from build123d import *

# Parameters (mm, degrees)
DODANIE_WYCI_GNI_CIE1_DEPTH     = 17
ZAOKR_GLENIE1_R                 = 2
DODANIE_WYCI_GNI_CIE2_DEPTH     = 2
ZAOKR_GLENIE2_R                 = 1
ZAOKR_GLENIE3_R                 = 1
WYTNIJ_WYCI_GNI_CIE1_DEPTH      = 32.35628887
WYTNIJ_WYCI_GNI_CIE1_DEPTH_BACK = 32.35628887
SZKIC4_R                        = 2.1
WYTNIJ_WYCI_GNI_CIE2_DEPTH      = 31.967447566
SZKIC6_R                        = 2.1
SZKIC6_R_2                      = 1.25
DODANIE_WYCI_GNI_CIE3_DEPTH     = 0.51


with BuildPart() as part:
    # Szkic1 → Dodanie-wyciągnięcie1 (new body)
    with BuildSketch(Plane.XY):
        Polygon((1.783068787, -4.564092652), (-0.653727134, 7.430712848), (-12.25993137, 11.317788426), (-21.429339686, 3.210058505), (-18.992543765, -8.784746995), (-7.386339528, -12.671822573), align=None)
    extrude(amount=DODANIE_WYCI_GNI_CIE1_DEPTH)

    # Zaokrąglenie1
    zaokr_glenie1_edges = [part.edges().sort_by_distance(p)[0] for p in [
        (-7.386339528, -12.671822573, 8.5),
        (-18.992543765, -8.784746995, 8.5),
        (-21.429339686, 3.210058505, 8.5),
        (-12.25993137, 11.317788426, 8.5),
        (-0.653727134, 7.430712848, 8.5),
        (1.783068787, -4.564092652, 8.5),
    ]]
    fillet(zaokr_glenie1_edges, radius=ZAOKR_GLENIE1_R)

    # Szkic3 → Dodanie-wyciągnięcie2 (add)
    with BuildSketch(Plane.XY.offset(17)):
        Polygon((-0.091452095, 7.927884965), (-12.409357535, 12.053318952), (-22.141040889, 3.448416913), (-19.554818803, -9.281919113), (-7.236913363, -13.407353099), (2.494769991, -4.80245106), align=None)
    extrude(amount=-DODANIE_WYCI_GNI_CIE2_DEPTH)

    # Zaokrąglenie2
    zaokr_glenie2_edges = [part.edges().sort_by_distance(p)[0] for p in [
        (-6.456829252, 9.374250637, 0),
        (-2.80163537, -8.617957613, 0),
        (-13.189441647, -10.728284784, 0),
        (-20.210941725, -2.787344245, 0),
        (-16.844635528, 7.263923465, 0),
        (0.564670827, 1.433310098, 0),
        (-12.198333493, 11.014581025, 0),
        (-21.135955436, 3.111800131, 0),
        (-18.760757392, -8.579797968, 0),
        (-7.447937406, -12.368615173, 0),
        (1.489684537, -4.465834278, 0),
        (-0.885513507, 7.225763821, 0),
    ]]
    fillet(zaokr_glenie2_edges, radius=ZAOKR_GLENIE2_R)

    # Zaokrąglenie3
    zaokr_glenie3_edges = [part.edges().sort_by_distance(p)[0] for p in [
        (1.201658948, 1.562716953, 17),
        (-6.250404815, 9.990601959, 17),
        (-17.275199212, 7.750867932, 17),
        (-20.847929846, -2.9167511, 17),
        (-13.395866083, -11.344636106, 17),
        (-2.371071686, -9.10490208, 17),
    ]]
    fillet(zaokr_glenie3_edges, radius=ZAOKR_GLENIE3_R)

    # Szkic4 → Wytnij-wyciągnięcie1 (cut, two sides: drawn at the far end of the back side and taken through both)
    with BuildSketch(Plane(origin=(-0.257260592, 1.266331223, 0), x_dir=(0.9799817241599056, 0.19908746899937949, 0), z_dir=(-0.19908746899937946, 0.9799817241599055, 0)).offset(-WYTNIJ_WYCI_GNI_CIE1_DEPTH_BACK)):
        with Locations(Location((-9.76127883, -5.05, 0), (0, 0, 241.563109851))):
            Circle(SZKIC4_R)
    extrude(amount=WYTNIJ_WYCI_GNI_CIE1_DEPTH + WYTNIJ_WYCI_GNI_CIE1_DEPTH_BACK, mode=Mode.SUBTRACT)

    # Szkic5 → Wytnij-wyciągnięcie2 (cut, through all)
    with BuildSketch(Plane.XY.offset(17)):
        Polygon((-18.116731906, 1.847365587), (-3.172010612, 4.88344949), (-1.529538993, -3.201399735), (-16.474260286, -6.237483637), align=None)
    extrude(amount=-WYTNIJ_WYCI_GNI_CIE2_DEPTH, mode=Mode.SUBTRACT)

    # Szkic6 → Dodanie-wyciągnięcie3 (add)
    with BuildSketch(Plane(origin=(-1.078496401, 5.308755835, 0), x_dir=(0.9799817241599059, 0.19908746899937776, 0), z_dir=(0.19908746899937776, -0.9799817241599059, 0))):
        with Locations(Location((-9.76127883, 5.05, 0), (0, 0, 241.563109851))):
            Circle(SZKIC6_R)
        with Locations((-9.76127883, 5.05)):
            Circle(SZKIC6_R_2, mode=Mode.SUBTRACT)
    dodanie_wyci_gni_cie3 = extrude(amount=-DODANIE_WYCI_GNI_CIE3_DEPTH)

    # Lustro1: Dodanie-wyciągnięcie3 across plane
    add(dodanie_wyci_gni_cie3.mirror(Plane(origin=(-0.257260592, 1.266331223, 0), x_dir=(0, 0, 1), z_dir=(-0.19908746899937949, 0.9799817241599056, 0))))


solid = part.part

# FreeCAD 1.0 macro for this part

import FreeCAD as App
import Part
import Sketcher
from FreeCAD import Vector
Q = App.Units.Quantity


def edges_at(feature, points):
    """Names of the edges that pass closest to the given points."""
    edges = feature.Shape.Edges
    near = lambda p: min(range(len(edges)), key=lambda i: edges[i].distToShape(Part.Vertex(*p))[0])
    return sorted({f"Edge{near(p) + 1}" for p in points})


def add_polygon(sketch, points):
    """Adds a closed chain of lines whose ends are joined by coincident constraints."""
    first, n = sketch.GeometryCount, len(points)
    for a, b in zip(points, points[1:] + points[:1]):
        sketch.addGeometry(Part.LineSegment(App.Vector(*a, 0), App.Vector(*b, 0)), False)
    for i in range(n):
        sketch.addConstraint(Sketcher.Constraint("Coincident", first + i, 2, first + (i + 1) % n, 1))

doc = App.newDocument("Part")
body = doc.addObject("PartDesign::Body", "Body")

sketch1 = doc.addObject("Sketcher::SketchObject", "Sketch")
body.addObject(sketch1)
sketch1.AttachmentSupport = (doc.XY_Plane, [""])
sketch1.MapMode = "FlatFace"
add_polygon(sketch1, [(2, -5), (-1, 7), (-12, 11), (-21, 3), (-19, -9), (-7, -13)])
sketch1.addConstraint([
    Sketcher.Constraint("Parallel", 0, 3),
    Sketcher.Constraint("Parallel", 1, 4),
    Sketcher.Constraint("Parallel", 2, 5),
    Sketcher.Constraint("Equal", 0, 1),
    Sketcher.Constraint("Equal", 1, 2),
    Sketcher.Constraint("Equal", 2, 3),
    Sketcher.Constraint("DistanceX", 2, 2, 4, 2, Q("14.043 mm")),
    Sketcher.Constraint("DistanceX", 1, 2, -1, 1, Q("12.259931 mm")),
    Sketcher.Constraint("DistanceY", -1, 1, 1, 2, Q("11.317788 mm")),
    Sketcher.Constraint("DistanceX", 2, 2, -1, 1, Q("21.42934 mm")),
    Sketcher.Constraint("DistanceY", -1, 1, 2, 2, Q("3.210059 mm")),
    Sketcher.Constraint("DistanceY", 3, 2, 0, 2, Q("16.21546 mm")),
])
pad1 = doc.addObject("PartDesign::Pad", "Pad")
body.addObject(pad1)
pad1.Profile = sketch1
pad1.Length = 17
doc.recompute()

fillet = doc.addObject("PartDesign::Fillet", "Fillet")
body.addObject(fillet)
fillet.Base = (pad1, edges_at(pad1, [
    (-7.386, -12.672, 8.5),
    (-18.993, -8.785, 8.5),
    (-21.429, 3.21, 8.5),
    (-12.26, 11.318, 8.5),
    (-0.654, 7.431, 8.5),
    (1.783, -4.564, 8.5),
]))
fillet.Radius = 2

sketch2 = doc.addObject("Sketcher::SketchObject", "Sketch001")
body.addObject(sketch2)
sketch2.AttachmentSupport = (doc.XY_Plane, [""])
sketch2.MapMode = "FlatFace"
sketch2.AttachmentOffset = App.Placement(Vector(0, 0, 17), App.Rotation())
add_polygon(sketch2, [(0, 8), (-12, 12), (-22, 3), (-20, -9), (-7, -13), (2, -5)])
sketch2.addConstraint([
    Sketcher.Constraint("Parallel", 0, 3),
    Sketcher.Constraint("Parallel", 1, 4),
    Sketcher.Constraint("Parallel", 2, 5),
    Sketcher.Constraint("Equal", 0, 1),
    Sketcher.Constraint("Equal", 1, 2),
    Sketcher.Constraint("Equal", 2, 3),
    Sketcher.Constraint("Distance", 0, Q("12.990381 mm")),
    Sketcher.Constraint("DistanceY", -1, 1, 0, 2, Q("12.053319 mm")),
    Sketcher.Constraint("DistanceX", 1, 2, -1, 1, Q("22.141041 mm")),
    Sketcher.Constraint("DistanceX", 2, 2, -1, 1, Q("19.554819 mm")),
    Sketcher.Constraint("DistanceY", 2, 2, -1, 1, Q("9.281919 mm")),
    Sketcher.Constraint("DistanceX", -1, 1, 4, 2, Q("2.49477 mm")),
])
pad2 = doc.addObject("PartDesign::Pad", "Pad001")
body.addObject(pad2)
pad2.Profile = sketch2
pad2.Length = 2
pad2.Reversed = True
doc.recompute()

fillet2 = doc.addObject("PartDesign::Fillet", "Fillet001")
body.addObject(fillet2)
fillet2.Base = (pad2, edges_at(pad2, [
    (-6.457, 9.374, 0),
    (-2.802, -8.618, 0),
    (-13.189, -10.728, 0),
    (-20.211, -2.787, 0),
    (-16.845, 7.264, 0),
    (0.565, 1.433, 0),
    (-12.198, 11.015, 0),
    (-21.136, 3.112, 0),
    (-18.761, -8.58, 0),
    (-7.448, -12.369, 0),
    (1.49, -4.466, 0),
    (-0.886, 7.226, 0),
]))
fillet2.Radius = 1
doc.recompute()

fillet3 = doc.addObject("PartDesign::Fillet", "Fillet002")
body.addObject(fillet3)
fillet3.Base = (fillet2, edges_at(fillet2, [
    (1.202, 1.563, 17),
    (-6.25, 9.991, 17),
    (-17.275, 7.751, 17),
    (-20.848, -2.917, 17),
    (-13.396, -11.345, 17),
    (-2.371, -9.105, 17),
]))
fillet3.Radius = 1

sketch3 = doc.addObject("Sketcher::SketchObject", "Sketch002")
body.addObject(sketch3)
sketch3.Placement = App.Placement(Vector(-0.257261, 1.266331, 0), App.Rotation(Vector(0.979981724, 0.199087469, 0), Vector(0, 0, -1), Vector(-0.199087469, 0.979981724, 0), "ZXY"))
sketch3.addGeometry(Part.Circle(Vector(-9.8, -5, 0), Vector(0, 0, 1), 2.1), False)
sketch3.addConstraint([
    Sketcher.Constraint("Diameter", 0, Q("4.2 mm")),
    Sketcher.Constraint("DistanceY", 0, 3, -1, 1, Q("5.05 mm")),
    Sketcher.Constraint("DistanceX", 0, 3, -1, 1, Q("9.761279 mm")),
])
pocket1 = doc.addObject("PartDesign::Pocket", "Pocket")
body.addObject(pocket1)
pocket1.Profile = sketch3
pocket1.Type = "ThroughAll"
pocket1.Midplane = True

sketch4 = doc.addObject("Sketcher::SketchObject", "Sketch003")
body.addObject(sketch4)
sketch4.AttachmentSupport = (doc.XY_Plane, [""])
sketch4.MapMode = "FlatFace"
sketch4.AttachmentOffset = App.Placement(Vector(0, 0, 17), App.Rotation())
add_polygon(sketch4, [(-3, 5), (-18, 2), (-16, -6), (-2, -3)])
sketch4.addConstraint([
    Sketcher.Constraint("Perpendicular", 0, 1),
    Sketcher.Constraint("Perpendicular", 1, 2),
    Sketcher.Constraint("Perpendicular", 2, 3),
    Sketcher.Constraint("Distance", 0, Q("15.25 mm")),
    Sketcher.Constraint("Distance", 1, Q("8.25 mm")),
    Sketcher.Constraint("DistanceY", 2, 2, -1, 1, Q("3.2014 mm")),
    Sketcher.Constraint("DistanceX", 0, 2, -1, 1, Q("18.116732 mm")),
    Sketcher.Constraint("DistanceX", 1, 2, -1, 1, Q("16.47426 mm")),
])
pocket2 = doc.addObject("PartDesign::Pocket", "Pocket001")
body.addObject(pocket2)
pocket2.Profile = sketch4
pocket2.Type = "ThroughAll"

sketch5 = doc.addObject("Sketcher::SketchObject", "Sketch004")
body.addObject(sketch5)
sketch5.Placement = App.Placement(Vector(-1.078496, 5.308756, 0), App.Rotation(Vector(0.979981724, 0.199087469, 0), Vector(0, 0, 1), Vector(0.199087469, -0.979981724, 0), "ZXY"))
sketch5.addGeometry([
    Part.Circle(Vector(-9.8, 5, 0), Vector(0, 0, 1), 2.1),
    Part.Circle(Vector(-9.8, 5, 0), Vector(0, 0, 1), 1.2),
], False)
sketch5.addConstraint([
    Sketcher.Constraint("Coincident", 1, 3, 0, 3),
    Sketcher.Constraint("Diameter", 0, Q("4.2 mm")),
    Sketcher.Constraint("Diameter", 1, Q("2.5 mm")),
    Sketcher.Constraint("DistanceY", -1, 1, 0, 3, Q("5.05 mm")),
    Sketcher.Constraint("DistanceX", 0, 3, -1, 1, Q("9.761279 mm")),
])
pad3 = doc.addObject("PartDesign::Pad", "Pad002")
body.addObject(pad3)
pad3.Profile = sketch5
pad3.Length = 0.51
pad3.Reversed = True
doc.recompute()

datumplane = doc.addObject("PartDesign::Plane", "DatumPlane")
body.addObject(datumplane)
datumplane.Placement = App.Placement(Vector(-0.257261, 1.266331, 0), App.Rotation(Vector(0.979981724, 0.199087469, 0), Vector(0, 0, -1), Vector(-0.199087469, 0.979981724, 0), "ZXY"))
mirrored = doc.addObject("PartDesign::Mirrored", "Mirrored")
body.addObject(mirrored)
mirrored.Originals = [pad3]
mirrored.MirrorPlane = (datumplane, [""])
body.Tip = mirrored

doc.recompute()
